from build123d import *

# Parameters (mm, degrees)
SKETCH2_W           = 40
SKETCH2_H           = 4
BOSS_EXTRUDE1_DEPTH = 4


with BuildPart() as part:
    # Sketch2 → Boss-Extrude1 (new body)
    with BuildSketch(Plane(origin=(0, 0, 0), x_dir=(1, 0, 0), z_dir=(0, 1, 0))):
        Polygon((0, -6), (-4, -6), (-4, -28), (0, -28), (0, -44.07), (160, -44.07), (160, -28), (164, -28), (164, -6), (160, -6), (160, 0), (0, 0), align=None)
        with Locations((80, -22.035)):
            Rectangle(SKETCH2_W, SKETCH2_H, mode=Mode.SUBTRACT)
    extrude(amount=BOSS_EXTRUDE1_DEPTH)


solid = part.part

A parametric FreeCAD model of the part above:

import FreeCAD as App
import Part
import Sketcher
Q = App.Units.Quantity

doc = App.newDocument("Part")
body = doc.addObject("PartDesign::Body", "Body")

sketch1 = body.newObject("Sketcher::SketchObject", "Sketch")
sketch1.AttachmentSupport = (doc.getObject("XZ_Plane"), [""])
sketch1.MapMode = "FlatFace"
sketch1.addGeometry(Part.LineSegment(App.Vector(0, 6, 0), App.Vector(-4, 6, 0)), False)
sketch1.addGeometry(Part.LineSegment(App.Vector(-4, 6, 0), App.Vector(-4, 28, 0)), False)
sketch1.addGeometry(Part.LineSegment(App.Vector(-4, 28, 0), App.Vector(0, 28, 0)), False)
sketch1.addGeometry(Part.LineSegment(App.Vector(0, 28, 0), App.Vector(0, 44.1, 0)), False)
sketch1.addGeometry(Part.LineSegment(App.Vector(0, 44.1, 0), App.Vector(160, 44.1, 0)), False)
sketch1.addGeometry(Part.LineSegment(App.Vector(160, 44.1, 0), App.Vector(160, 28, 0)), False)
sketch1.addGeometry(Part.LineSegment(App.Vector(160, 28, 0), App.Vector(164, 28, 0)), False)
sketch1.addGeometry(Part.LineSegment(App.Vector(164, 28, 0), App.Vector(164, 6, 0)), False)
sketch1.addGeometry(Part.LineSegment(App.Vector(164, 6, 0), App.Vector(160, 6, 0)), False)
sketch1.addGeometry(Part.LineSegment(App.Vector(160, 6, 0), App.Vector(160, 0, 0)), False)
sketch1.addGeometry(Part.LineSegment(App.Vector(160, 0, 0), App.Vector(0, 0, 0)), False)
sketch1.addGeometry(Part.LineSegment(App.Vector(0, 0, 0), App.Vector(0, 6, 0)), False)
sketch1.addGeometry(Part.LineSegment(App.Vector(100, 24, 0), App.Vector(60, 24, 0)), False)
sketch1.addGeometry(Part.LineSegment(App.Vector(60, 24, 0), App.Vector(60, 20, 0)), False)
sketch1.addGeometry(Part.LineSegment(App.Vector(60, 20, 0), App.Vector(100, 20, 0)), False)
sketch1.addGeometry(Part.LineSegment(App.Vector(100, 20, 0), App.Vector(100, 24, 0)), False)
sketch1.addConstraint(Sketcher.Constraint("Coincident", 0, 2, 1, 1))
sketch1.addConstraint(Sketcher.Constraint("Coincident", 1, 2, 2, 1))
sketch1.addConstraint(Sketcher.Constraint("Coincident", 2, 2, 3, 1))
sketch1.addConstraint(Sketcher.Constraint("Coincident", 3, 2, 4, 1))
sketch1.addConstraint(Sketcher.Constraint("Coincident", 4, 2, 5, 1))
sketch1.addConstraint(Sketcher.Constraint("Coincident", 5, 2, 6, 1))
sketch1.addConstraint(Sketcher.Constraint("Coincident", 6, 2, 7, 1))
sketch1.addConstraint(Sketcher.Constraint("Coincident", 7, 2, 8, 1))
sketch1.addConstraint(Sketcher.Constraint("Coincident", 8, 2, 9, 1))
sketch1.addConstraint(Sketcher.Constraint("Coincident", 9, 2, 10, 1))
sketch1.addConstraint(Sketcher.Constraint("Coincident", 10, 2, 11, 1))
sketch1.addConstraint(Sketcher.Constraint("Coincident", 11, 2, 0, 1))
sketch1.addConstraint(Sketcher.Constraint("Coincident", 12, 2, 13, 1))
sketch1.addConstraint(Sketcher.Constraint("Coincident", 13, 2, 14, 1))
sketch1.addConstraint(Sketcher.Constraint("Coincident", 14, 2, 15, 1))
sketch1.addConstraint(Sketcher.Constraint("Coincident", 15, 2, 12, 1))
sketch1.addConstraint(Sketcher.Constraint("Horizontal", 0))
sketch1.addConstraint(Sketcher.Constraint("Vertical", 1))
sketch1.addConstraint(Sketcher.Constraint("Horizontal", 2))
sketch1.addConstraint(Sketcher.Constraint("Vertical", 3))
sketch1.addConstraint(Sketcher.Constraint("Horizontal", 4))
sketch1.addConstraint(Sketcher.Constraint("Vertical", 5))
sketch1.addConstraint(Sketcher.Constraint("Horizontal", 6))
sketch1.addConstraint(Sketcher.Constraint("Vertical", 7))
sketch1.addConstraint(Sketcher.Constraint("Horizontal", 8))
sketch1.addConstraint(Sketcher.Constraint("Vertical", 9))
sketch1.addConstraint(Sketcher.Constraint("Horizontal", 10))
sketch1.addConstraint(Sketcher.Constraint("Vertical", 11))
sketch1.addConstraint(Sketcher.Constraint("Horizontal", 12))
sketch1.addConstraint(Sketcher.Constraint("Vertical", 13))
sketch1.addConstraint(Sketcher.Constraint("Horizontal", 14))
sketch1.addConstraint(Sketcher.Constraint("Vertical", 15))
sketch1.addConstraint(Sketcher.Constraint("Coincident", 10, 2, -1, 1))
sketch1.addConstraint(Sketcher.Constraint("PointOnObject", 2, 2, -2))
sketch1.addConstraint(Sketcher.Constraint("Horizontal", 2, 2, 5, 2))
sketch1.addConstraint(Sketcher.Constraint("Horizontal", 0, 2, 7, 2))
sketch1.addConstraint(Sketcher.Constraint("Vertical", 5, 2, 8, 2))
sketch1.addConstraint(Sketcher.Constraint("Equal", 2, 6))
sketch1.addConstraint(Sketcher.Constraint("Equal", 8, 13))
sketch1.addConstraint(Sketcher.Constraint("DistanceX", 0, 2, 0, 1, Q("4 mm")))
sketch1.addConstraint(Sketcher.Constraint("DistanceX", 4, 1, 4, 2, Q("160 mm")))
sketch1.addConstraint(Sketcher.Constraint("DistanceX", 12, 2, 12, 1, Q("40 mm")))
sketch1.addConstraint(Sketcher.Constraint("DistanceY", 1, 1, 1, 2, Q("22 mm")))
sketch1.addConstraint(Sketcher.Constraint("DistanceY", 9, 2, 9, 1, Q("6 mm")))
sketch1.addConstraint(Sketcher.Constraint("DistanceX", -1, 1, 12, 2, Q("60 mm")))
sketch1.addConstraint(Sketcher.Constraint("DistanceY", 3, 1, 3, 2, Q("16.07 mm")))
sketch1.addConstraint(Sketcher.Constraint("DistanceY", -1, 1, 12, 2, Q("24.035 mm")))
pad1 = body.newObject("PartDesign::Pad", "Pad")
pad1.Profile = sketch1
pad1.Length = 4
pad1.Reversed = True

doc.recompute()
